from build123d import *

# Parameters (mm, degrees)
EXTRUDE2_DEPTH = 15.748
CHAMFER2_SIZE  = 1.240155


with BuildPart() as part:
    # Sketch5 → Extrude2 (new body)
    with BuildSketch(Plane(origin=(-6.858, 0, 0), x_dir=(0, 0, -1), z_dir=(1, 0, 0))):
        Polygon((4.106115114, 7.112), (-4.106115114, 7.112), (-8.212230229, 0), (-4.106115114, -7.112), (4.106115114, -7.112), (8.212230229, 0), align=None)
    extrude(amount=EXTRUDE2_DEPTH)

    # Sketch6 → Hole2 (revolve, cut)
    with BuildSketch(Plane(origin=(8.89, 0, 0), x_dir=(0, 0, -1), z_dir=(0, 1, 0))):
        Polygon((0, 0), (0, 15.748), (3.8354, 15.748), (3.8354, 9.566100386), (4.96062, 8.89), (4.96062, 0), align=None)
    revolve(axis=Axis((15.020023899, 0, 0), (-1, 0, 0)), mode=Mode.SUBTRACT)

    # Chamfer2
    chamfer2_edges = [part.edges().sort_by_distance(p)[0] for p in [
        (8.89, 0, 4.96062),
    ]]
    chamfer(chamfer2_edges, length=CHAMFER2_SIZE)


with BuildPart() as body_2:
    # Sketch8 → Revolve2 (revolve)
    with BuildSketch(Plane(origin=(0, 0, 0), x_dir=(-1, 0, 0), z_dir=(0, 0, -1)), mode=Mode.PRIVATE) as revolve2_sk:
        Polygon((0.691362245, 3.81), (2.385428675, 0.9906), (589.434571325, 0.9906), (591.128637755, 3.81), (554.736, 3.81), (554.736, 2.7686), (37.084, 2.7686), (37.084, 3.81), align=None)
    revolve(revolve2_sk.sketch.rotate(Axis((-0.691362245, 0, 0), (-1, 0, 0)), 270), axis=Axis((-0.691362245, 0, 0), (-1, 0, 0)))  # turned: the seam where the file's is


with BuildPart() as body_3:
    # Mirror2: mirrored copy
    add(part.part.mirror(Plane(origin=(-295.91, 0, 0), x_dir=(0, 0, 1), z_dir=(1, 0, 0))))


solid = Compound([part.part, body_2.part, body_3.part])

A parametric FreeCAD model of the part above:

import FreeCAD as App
import Part
import Sketcher
Q = App.Units.Quantity


def edges_at(feature, points):
    """Names of the edges that pass closest to the given points."""
    edges = feature.Shape.Edges
    near = lambda p: min(range(len(edges)), key=lambda i: edges[i].distToShape(Part.Vertex(*p))[0])
    return sorted({f"Edge{near(p) + 1}" for p in points})

doc = App.newDocument("Part")
body = doc.addObject("PartDesign::Body", "Body")

# Sketch on YZ plane
sketch1 = doc.addObject("Sketcher::SketchObject", "Sketch")
body.addObject(sketch1)
sketch1.AttachmentSupport = (doc.YZ_Plane, [""])
sketch1.MapMode = "FlatFace"
sketch1.AttachmentOffset = App.Placement(App.Vector(0, 0, -0.27 * 25.4), App.Rotation())
sketch1.addGeometry(Part.LineSegment(App.Vector(7, -4, 0), App.Vector(7, 4, 0)), False)
sketch1.addGeometry(Part.LineSegment(App.Vector(7, 4, 0), App.Vector(0, 8, 0)), False)
sketch1.addGeometry(Part.LineSegment(App.Vector(0, 8, 0), App.Vector(-7, 4, 0)), False)
sketch1.addGeometry(Part.LineSegment(App.Vector(-7, 4, 0), App.Vector(-7, -4, 0)), False)
sketch1.addGeometry(Part.LineSegment(App.Vector(-7, -4, 0), App.Vector(0, -8, 0)), False)
sketch1.addGeometry(Part.LineSegment(App.Vector(0, -8, 0), App.Vector(7, -4, 0)), False)
sketch1.addConstraint(Sketcher.Constraint("Coincident", 0, 2, 1, 1))
sketch1.addConstraint(Sketcher.Constraint("Coincident", 1, 2, 2, 1))
sketch1.addConstraint(Sketcher.Constraint("Coincident", 2, 2, 3, 1))
sketch1.addConstraint(Sketcher.Constraint("Coincident", 3, 2, 4, 1))
sketch1.addConstraint(Sketcher.Constraint("Coincident", 4, 2, 5, 1))
sketch1.addConstraint(Sketcher.Constraint("Coincident", 5, 2, 0, 1))
sketch1.addConstraint(Sketcher.Constraint("Vertical", 0))
sketch1.addConstraint(Sketcher.Constraint("Vertical", 3))
sketch1.addConstraint(Sketcher.Constraint("Symmetric", 0, 2, 3, 2, -1, 1))
sketch1.addConstraint(Sketcher.Constraint("Symmetric", 1, 2, 4, 2, -1, 1))
sketch1.addConstraint(Sketcher.Constraint("PointOnObject", 1, 2, -2))
sketch1.addConstraint(Sketcher.Constraint("Parallel", 2, 5))
sketch1.addConstraint(Sketcher.Constraint("Horizontal", 0, 2, 2, 2))
sketch1.addConstraint(Sketcher.Constraint("Angle", 1, Q("150 deg")))
sketch1.addConstraint(Sketcher.Constraint("DistanceX", -1, 1, 0, 2, Q("0.28 in")))
sketch1.addConstraint(Sketcher.Constraint("DistanceY", 0, 1, 0, 2, Q("8.21223 mm")))
pad1 = doc.addObject("PartDesign::Pad", "Pad")
body.addObject(pad1)
pad1.Profile = sketch1
pad1.Length = Q("0.62 in")

# Sketch on XZ plane
sketch2 = doc.addObject("Sketcher::SketchObject", "Sketch001")
body.addObject(sketch2)
sketch2.AttachmentSupport = (doc.XZ_Plane, [""])
sketch2.MapMode = "FlatFace"
sketch2.addGeometry(Part.LineSegment(App.Vector(-6.9, 0, 0), App.Vector(8.9, 0, 0)), False)
sketch2.addGeometry(Part.LineSegment(App.Vector(8.9, 0, 0), App.Vector(8.9, -5, 0)), False)
sketch2.addGeometry(Part.LineSegment(App.Vector(8.9, -5, 0), App.Vector(0, -5, 0)), False)
sketch2.addGeometry(Part.LineSegment(App.Vector(0, -5, 0), App.Vector(-0.7, -3.8, 0)), False)
sketch2.addGeometry(Part.LineSegment(App.Vector(-0.7, -3.8, 0), App.Vector(-6.9, -3.8, 0)), False)
sketch2.addGeometry(Part.LineSegment(App.Vector(-6.9, -3.8, 0), App.Vector(-6.9, 0, 0)), False)
sketch2.addConstraint(Sketcher.Constraint("Coincident", 0, 2, 1, 1))
sketch2.addConstraint(Sketcher.Constraint("Coincident", 1, 2, 2, 1))
sketch2.addConstraint(Sketcher.Constraint("Coincident", 2, 2, 3, 1))
sketch2.addConstraint(Sketcher.Constraint("Coincident", 3, 2, 4, 1))
sketch2.addConstraint(Sketcher.Constraint("Coincident", 4, 2, 5, 1))
sketch2.addConstraint(Sketcher.Constraint("Coincident", 5, 2, 0, 1))
sketch2.addConstraint(Sketcher.Constraint("Horizontal", 0))
sketch2.addConstraint(Sketcher.Constraint("Vertical", 1))
sketch2.addConstraint(Sketcher.Constraint("Horizontal", 2))
sketch2.addConstraint(Sketcher.Constraint("Horizontal", 4))
sketch2.addConstraint(Sketcher.Constraint("Vertical", 5))
sketch2.addConstraint(Sketcher.Constraint("PointOnObject", 0, 2, -1))
sketch2.addConstraint(Sketcher.Constraint("PointOnObject", 2, 2, -2))
sketch2.addConstraint(Sketcher.Constraint("Angle", 3, Q("121 deg")))
sketch2.addConstraint(Sketcher.Constraint("DistanceX", 0, 1, 0, 2, Q("0.62 in")))
sketch2.addConstraint(Sketcher.Constraint("DistanceX", 2, 2, 2, 1, Q("0.35 in")))
sketch2.addConstraint(Sketcher.Constraint("DistanceY", 5, 1, 5, 2, Q("0.151 in")))
sketch2.addConstraint(Sketcher.Constraint("DistanceY", 1, 2, 1, 1, Q("0.1953 in")))
groove = doc.addObject("PartDesign::Groove", "Groove")
body.addObject(groove)
groove.Profile = sketch2
groove.ReferenceAxis = (sketch2, ["H_Axis"])
groove.Angle = 360
doc.recompute()

chamfer = doc.addObject("PartDesign::Chamfer", "Chamfer")
body.addObject(chamfer)
chamfer.Base = (groove, edges_at(groove, [(8.89, 0, 4.961)]))
chamfer.Size = 1.240155
body2 = doc.addObject("PartDesign::Body", "Body001")

# Sketch on XY plane
sketch3 = doc.addObject("Sketcher::SketchObject", "Sketch002")
body2.addObject(sketch3)
sketch3.AttachmentSupport = (doc.getObject("XY_Plane001"), [""])
sketch3.MapMode = "FlatFace"
sketch3.addGeometry(Part.LineSegment(App.Vector(-0.7, 3.8, 0), App.Vector(-2.4, 1, 0)), False)
sketch3.addGeometry(Part.LineSegment(App.Vector(-2.4, 1, 0), App.Vector(-589.4, 1, 0)), False)
sketch3.addGeometry(Part.LineSegment(App.Vector(-589.4, 1, 0), App.Vector(-591.1, 3.8, 0)), False)
sketch3.addGeometry(Part.LineSegment(App.Vector(-591.1, 3.8, 0), App.Vector(-554.7, 3.8, 0)), False)
sketch3.addGeometry(Part.LineSegment(App.Vector(-554.7, 3.8, 0), App.Vector(-554.7, 2.8, 0)), False)
sketch3.addGeometry(Part.LineSegment(App.Vector(-554.7, 2.8, 0), App.Vector(-37.1, 2.8, 0)), False)
sketch3.addGeometry(Part.LineSegment(App.Vector(-37.1, 2.8, 0), App.Vector(-37.1, 3.8, 0)), False)
sketch3.addGeometry(Part.LineSegment(App.Vector(-37.1, 3.8, 0), App.Vector(-0.7, 3.8, 0)), False)
sketch3.addConstraint(Sketcher.Constraint("Coincident", 0, 2, 1, 1))
sketch3.addConstraint(Sketcher.Constraint("Coincident", 1, 2, 2, 1))
sketch3.addConstraint(Sketcher.Constraint("Coincident", 2, 2, 3, 1))
sketch3.addConstraint(Sketcher.Constraint("Coincident", 3, 2, 4, 1))
sketch3.addConstraint(Sketcher.Constraint("Coincident", 4, 2, 5, 1))
sketch3.addConstraint(Sketcher.Constraint("Coincident", 5, 2, 6, 1))
sketch3.addConstraint(Sketcher.Constraint("Coincident", 6, 2, 7, 1))
sketch3.addConstraint(Sketcher.Constraint("Coincident", 7, 2, 0, 1))
sketch3.addConstraint(Sketcher.Constraint("Horizontal", 1))
sketch3.addConstraint(Sketcher.Constraint("Horizontal", 3))
sketch3.addConstraint(Sketcher.Constraint("Vertical", 4))
sketch3.addConstraint(Sketcher.Constraint("Horizontal", 5))
sketch3.addConstraint(Sketcher.Constraint("Vertical", 6))
sketch3.addConstraint(Sketcher.Constraint("Horizontal", 7))
sketch3.addConstraint(Sketcher.Constraint("Horizontal", 3, 2, 6, 2))
sketch3.addConstraint(Sketcher.Constraint("Equal", 3, 7))
sketch3.addConstraint(Sketcher.Constraint("Equal", 0, 2))
sketch3.addConstraint(Sketcher.Constraint("Angle", 0, Q("-121 deg")))
sketch3.addConstraint(Sketcher.Constraint("DistanceX", 5, 1, 5, 2, Q("20.38 in")))
sketch3.addConstraint(Sketcher.Constraint("DistanceY", 4, 2, 4, 1, Q("0.041 in")))
sketch3.addConstraint(Sketcher.Constraint("DistanceY", -1, 1, 2, 2, Q("0.15 in")))
sketch3.addConstraint(Sketcher.Constraint("DistanceX", 3, 2, -1, 1, Q("21.84 in")))
sketch3.addConstraint(Sketcher.Constraint("DistanceY", 1, 2, 4, 2, Q("0.07 in")))
sketch3.addConstraint(Sketcher.Constraint("DistanceX", 1, 2, 1, 1, Q("587.049143 mm")))
revolution = doc.addObject("PartDesign::Revolution", "Revolution")
body2.addObject(revolution)
revolution.Profile = sketch3
revolution.ReferenceAxis = (sketch3, ["H_Axis"])
revolution.Angle = 360
body3 = doc.addObject("PartDesign::Body", "Body002")
doc.recompute()

mirroring = doc.addObject("Part::Mirroring", "Mirroring")
mirroring.Source = body
mirroring.Base = App.Vector(-295.91, 0, 0)
mirroring.Normal = App.Vector(1, 0, 0)
body3.BaseFeature = mirroring
doc.recompute()
mirroring.Visibility = False

doc.recompute()
